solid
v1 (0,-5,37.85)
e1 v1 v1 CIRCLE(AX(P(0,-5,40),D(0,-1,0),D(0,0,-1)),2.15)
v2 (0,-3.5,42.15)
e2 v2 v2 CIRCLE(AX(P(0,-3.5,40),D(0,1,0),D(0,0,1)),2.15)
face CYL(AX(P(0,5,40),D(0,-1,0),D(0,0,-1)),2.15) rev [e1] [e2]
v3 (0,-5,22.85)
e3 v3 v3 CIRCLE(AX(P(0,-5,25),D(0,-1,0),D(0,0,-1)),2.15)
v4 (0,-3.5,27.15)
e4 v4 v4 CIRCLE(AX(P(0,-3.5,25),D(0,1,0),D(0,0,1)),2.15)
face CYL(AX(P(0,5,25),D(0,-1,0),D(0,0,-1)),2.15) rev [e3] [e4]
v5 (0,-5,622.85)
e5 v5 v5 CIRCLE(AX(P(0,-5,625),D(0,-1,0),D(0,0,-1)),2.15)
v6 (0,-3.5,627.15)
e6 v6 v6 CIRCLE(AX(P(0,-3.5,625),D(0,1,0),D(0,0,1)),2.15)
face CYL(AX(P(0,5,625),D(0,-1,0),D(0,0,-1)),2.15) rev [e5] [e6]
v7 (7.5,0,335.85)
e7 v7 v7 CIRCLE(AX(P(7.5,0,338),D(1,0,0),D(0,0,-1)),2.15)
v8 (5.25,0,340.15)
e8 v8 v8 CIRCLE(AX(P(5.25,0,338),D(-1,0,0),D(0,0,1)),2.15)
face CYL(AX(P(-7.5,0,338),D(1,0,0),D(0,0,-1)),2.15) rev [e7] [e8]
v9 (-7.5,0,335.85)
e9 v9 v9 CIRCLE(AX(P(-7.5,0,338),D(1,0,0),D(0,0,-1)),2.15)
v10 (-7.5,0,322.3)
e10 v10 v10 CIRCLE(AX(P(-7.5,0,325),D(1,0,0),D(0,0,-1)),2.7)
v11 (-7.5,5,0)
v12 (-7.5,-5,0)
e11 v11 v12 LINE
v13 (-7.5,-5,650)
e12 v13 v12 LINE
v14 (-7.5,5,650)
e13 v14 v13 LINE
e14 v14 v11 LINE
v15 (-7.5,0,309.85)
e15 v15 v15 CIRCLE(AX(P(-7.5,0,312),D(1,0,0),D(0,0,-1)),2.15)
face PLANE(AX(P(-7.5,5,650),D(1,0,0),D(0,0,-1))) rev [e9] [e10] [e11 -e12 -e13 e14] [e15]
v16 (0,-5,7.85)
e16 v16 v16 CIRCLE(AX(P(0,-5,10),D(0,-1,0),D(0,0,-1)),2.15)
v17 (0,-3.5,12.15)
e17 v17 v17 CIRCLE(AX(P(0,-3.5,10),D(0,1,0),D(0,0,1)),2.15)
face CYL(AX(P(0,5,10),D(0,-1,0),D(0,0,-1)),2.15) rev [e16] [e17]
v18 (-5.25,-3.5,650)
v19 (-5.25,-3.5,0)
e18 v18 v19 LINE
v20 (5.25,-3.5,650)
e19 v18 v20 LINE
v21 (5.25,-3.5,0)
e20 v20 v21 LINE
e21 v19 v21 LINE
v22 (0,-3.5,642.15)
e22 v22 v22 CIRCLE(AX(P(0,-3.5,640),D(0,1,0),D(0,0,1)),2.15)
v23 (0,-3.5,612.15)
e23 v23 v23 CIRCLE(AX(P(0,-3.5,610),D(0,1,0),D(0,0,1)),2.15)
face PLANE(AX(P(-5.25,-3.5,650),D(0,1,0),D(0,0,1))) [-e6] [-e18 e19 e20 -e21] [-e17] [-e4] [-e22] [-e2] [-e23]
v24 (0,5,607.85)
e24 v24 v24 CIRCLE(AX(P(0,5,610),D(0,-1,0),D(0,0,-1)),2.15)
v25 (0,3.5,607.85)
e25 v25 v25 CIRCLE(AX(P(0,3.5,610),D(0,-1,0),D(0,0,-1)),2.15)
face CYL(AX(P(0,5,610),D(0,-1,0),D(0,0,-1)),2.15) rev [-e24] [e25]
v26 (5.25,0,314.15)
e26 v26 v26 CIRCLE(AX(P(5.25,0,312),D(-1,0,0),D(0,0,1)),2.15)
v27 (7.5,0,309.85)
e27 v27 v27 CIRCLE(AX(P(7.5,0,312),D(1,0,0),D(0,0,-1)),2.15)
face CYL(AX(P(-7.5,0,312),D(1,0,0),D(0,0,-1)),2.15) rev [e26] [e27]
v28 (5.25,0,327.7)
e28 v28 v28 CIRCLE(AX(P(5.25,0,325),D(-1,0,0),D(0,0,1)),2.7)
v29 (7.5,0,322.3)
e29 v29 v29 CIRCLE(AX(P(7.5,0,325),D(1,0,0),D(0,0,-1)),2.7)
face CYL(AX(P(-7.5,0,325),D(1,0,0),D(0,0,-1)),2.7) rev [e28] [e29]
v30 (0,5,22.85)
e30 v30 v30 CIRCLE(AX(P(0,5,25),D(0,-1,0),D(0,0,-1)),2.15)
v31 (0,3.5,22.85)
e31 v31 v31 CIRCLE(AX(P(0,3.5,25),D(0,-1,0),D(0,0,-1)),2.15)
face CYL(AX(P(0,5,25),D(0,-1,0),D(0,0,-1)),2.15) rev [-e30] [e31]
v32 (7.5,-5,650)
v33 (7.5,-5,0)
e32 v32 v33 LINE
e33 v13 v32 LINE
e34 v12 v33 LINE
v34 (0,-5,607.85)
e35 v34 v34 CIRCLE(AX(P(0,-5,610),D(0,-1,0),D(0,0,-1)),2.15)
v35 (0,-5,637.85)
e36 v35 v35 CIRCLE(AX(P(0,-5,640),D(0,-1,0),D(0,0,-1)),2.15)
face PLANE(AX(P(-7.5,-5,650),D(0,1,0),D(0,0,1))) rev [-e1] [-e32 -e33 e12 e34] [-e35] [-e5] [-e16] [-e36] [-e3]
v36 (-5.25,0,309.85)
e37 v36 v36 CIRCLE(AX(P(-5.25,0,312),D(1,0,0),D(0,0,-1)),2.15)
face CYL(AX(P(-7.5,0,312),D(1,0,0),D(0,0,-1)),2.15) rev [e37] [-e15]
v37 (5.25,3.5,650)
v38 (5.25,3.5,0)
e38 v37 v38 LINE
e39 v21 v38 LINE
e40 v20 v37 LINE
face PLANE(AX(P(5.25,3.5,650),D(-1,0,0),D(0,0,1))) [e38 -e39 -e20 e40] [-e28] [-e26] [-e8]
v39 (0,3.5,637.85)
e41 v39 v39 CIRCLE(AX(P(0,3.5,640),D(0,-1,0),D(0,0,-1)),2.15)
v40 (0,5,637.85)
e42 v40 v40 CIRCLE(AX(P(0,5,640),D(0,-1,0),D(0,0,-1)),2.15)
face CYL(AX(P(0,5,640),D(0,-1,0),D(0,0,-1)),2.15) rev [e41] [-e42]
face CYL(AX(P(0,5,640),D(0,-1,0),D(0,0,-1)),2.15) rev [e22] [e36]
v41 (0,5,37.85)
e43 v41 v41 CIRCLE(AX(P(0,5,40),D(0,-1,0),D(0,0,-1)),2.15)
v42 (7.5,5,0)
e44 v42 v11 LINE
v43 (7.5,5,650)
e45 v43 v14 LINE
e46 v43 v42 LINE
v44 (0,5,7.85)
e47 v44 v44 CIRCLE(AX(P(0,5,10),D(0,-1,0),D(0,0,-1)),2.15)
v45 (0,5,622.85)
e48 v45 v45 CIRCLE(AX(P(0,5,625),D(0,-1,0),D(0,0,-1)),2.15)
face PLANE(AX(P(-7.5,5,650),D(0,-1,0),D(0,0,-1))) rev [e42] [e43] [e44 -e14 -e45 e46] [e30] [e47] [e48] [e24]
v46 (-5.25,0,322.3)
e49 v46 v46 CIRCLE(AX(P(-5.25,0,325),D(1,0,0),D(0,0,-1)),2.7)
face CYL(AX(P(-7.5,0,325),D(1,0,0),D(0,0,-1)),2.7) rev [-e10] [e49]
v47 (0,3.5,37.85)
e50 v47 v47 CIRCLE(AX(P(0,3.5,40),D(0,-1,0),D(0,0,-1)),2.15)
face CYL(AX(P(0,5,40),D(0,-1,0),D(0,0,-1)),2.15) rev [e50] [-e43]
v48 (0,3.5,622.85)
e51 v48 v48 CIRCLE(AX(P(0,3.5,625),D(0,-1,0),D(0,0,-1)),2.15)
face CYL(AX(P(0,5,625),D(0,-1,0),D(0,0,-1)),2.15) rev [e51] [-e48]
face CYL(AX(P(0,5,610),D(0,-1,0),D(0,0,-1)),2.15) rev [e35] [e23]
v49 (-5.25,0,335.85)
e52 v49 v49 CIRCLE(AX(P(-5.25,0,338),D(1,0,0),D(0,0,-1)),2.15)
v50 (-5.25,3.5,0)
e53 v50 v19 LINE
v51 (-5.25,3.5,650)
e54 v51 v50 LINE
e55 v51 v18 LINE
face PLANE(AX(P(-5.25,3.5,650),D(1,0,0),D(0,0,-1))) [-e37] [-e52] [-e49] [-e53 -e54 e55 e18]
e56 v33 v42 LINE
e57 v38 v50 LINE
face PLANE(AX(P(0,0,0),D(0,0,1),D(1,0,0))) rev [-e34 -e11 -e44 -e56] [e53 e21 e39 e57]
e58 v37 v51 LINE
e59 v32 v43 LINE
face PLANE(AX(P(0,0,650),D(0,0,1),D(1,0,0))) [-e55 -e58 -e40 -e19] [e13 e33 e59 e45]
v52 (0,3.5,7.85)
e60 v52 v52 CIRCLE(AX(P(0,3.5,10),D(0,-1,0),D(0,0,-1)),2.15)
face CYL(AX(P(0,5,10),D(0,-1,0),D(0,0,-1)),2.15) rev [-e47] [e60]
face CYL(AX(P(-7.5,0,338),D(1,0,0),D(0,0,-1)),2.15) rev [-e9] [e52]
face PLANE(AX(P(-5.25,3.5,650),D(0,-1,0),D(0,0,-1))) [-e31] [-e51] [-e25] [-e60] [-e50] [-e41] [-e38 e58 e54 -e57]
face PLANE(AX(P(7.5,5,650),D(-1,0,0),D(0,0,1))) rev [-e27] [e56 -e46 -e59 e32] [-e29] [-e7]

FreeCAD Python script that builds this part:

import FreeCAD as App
import Part
import Sketcher
from FreeCAD import Vector

doc = App.newDocument("Part")
body = doc.addObject("PartDesign::Body", "Body")

sketch1 = body.newObject("Sketcher::SketchObject", "Sketch")
sketch1.AttachmentSupport = (doc.getObject("XY_Plane"), [""])
sketch1.MapMode = "FlatFace"
sketch1.addGeometry([
    Part.LineSegment(Vector(-8, 5, 0), Vector(-8, -5, 0)),
    Part.LineSegment(Vector(-8, -5, 0), Vector(8, -5, 0)),
    Part.LineSegment(Vector(8, -5, 0), Vector(8, 5, 0)),
    Part.LineSegment(Vector(8, 5, 0), Vector(-8, 5, 0)),
    Part.LineSegment(Vector(5, -4, 0), Vector(-5, -4, 0)),
    Part.LineSegment(Vector(-5, -4, 0), Vector(-5, 4, 0)),
    Part.LineSegment(Vector(-5, 4, 0), Vector(5, 4, 0)),
    Part.LineSegment(Vector(5, 4, 0), Vector(5, -4, 0)),
], False)
sketch1.addConstraint([
    Sketcher.Constraint("Coincident", 0, 2, 1, 1),
    Sketcher.Constraint("Coincident", 1, 2, 2, 1),
    Sketcher.Constraint("Coincident", 2, 2, 3, 1),
    Sketcher.Constraint("Coincident", 3, 2, 0, 1),
    Sketcher.Constraint("Coincident", 4, 2, 5, 1),
    Sketcher.Constraint("Coincident", 5, 2, 6, 1),
    Sketcher.Constraint("Coincident", 6, 2, 7, 1),
    Sketcher.Constraint("Coincident", 7, 2, 4, 1),
    Sketcher.Constraint("Vertical", 0),
    Sketcher.Constraint("Horizontal", 1),
    Sketcher.Constraint("Vertical", 2),
    Sketcher.Constraint("Horizontal", 3),
    Sketcher.Constraint("Horizontal", 4),
    Sketcher.Constraint("Vertical", 5),
    Sketcher.Constraint("Horizontal", 6),
    Sketcher.Constraint("Vertical", 7),
    Sketcher.Constraint("Symmetric", 0, 2, 2, 2, -1, 1),
    Sketcher.Constraint("Symmetric", 4, 2, 6, 2, -1, 1),
    Sketcher.Constraint("DistanceX", 1, 1, 1, 2, 15.0),
    Sketcher.Constraint("DistanceY", 0, 2, 0, 1, 10.0),
    Sketcher.Constraint("DistanceY", 5, 1, 5, 2, 7.0),
    Sketcher.Constraint("DistanceX", 4, 2, 4, 1, 10.5),
])
pad1 = body.newObject("PartDesign::Pad", "Pad")
pad1.Profile = sketch1
pad1.Length = 650

sketch2 = body.newObject("Sketcher::SketchObject", "Sketch001")
sketch2.AttachmentSupport = (doc.getObject("XZ_Plane"), [""])
sketch2.MapMode = "FlatFace"
sketch2.AttachmentOffset = App.Placement(Vector(0, 0, 5), App.Rotation())
sketch2.addGeometry([
    Part.Circle(Vector(0, 640, 0), Vector(0, 0, 1), 2.1),
    Part.Circle(Vector(0, 625, 0), Vector(0, 0, 1), 2.1),
    Part.Circle(Vector(0, 610, 0), Vector(0, 0, 1), 2.1),
    Part.Circle(Vector(0, 10, 0), Vector(0, 0, 1), 2.1),
    Part.Circle(Vector(0, 25, 0), Vector(0, 0, 1), 2.1),
    Part.Circle(Vector(0, 40, 0), Vector(0, 0, 1), 2.1),
], False)
sketch2.addConstraint([
    Sketcher.Constraint("Equal", 0, 1),
    Sketcher.Constraint("Equal", 1, 2),
    Sketcher.Constraint("Equal", 2, 3),
    Sketcher.Constraint("Equal", 3, 4),
    Sketcher.Constraint("Equal", 4, 5),
    Sketcher.Constraint("PointOnObject", 0, 3, -2),
    Sketcher.Constraint("PointOnObject", 1, 3, -2),
    Sketcher.Constraint("PointOnObject", 2, 3, -2),
    Sketcher.Constraint("PointOnObject", 3, 3, -2),
    Sketcher.Constraint("PointOnObject", 4, 3, -2),
    Sketcher.Constraint("PointOnObject", 5, 3, -2),
    Sketcher.Constraint("Diameter", 0, 4.3),
    Sketcher.Constraint("DistanceY", -1, 1, 0, 3, 640.0),
    Sketcher.Constraint("DistanceY", -1, 1, 1, 3, 625.0),
    Sketcher.Constraint("DistanceY", -1, 1, 2, 3, 610.0),
    Sketcher.Constraint("DistanceY", -1, 1, 3, 3, 10.0),
    Sketcher.Constraint("DistanceY", -1, 1, 4, 3, 25.0),
    Sketcher.Constraint("DistanceY", -1, 1, 5, 3, 40.0),
])
pocket1 = body.newObject("PartDesign::Pocket", "Pocket")
pocket1.Profile = sketch2
pocket1.Type = "ThroughAll"

sketch3 = body.newObject("Sketcher::SketchObject", "Sketch002")
sketch3.AttachmentSupport = (doc.getObject("YZ_Plane"), [""])
sketch3.MapMode = "FlatFace"
sketch3.AttachmentOffset = App.Placement(Vector(0, 0, 7.5), App.Rotation())
sketch3.addGeometry([
    Part.Circle(Vector(0, 338, 0), Vector(0, 0, 1), 2.1),
    Part.Circle(Vector(0, 312, 0), Vector(0, 0, 1), 2.1),
    Part.Circle(Vector(0, 325, 0), Vector(0, 0, 1), 2.7),
], False)
sketch3.addConstraint([
    Sketcher.Constraint("Equal", 0, 1),
    Sketcher.Constraint("PointOnObject", 0, 3, -2),
    Sketcher.Constraint("PointOnObject", 1, 3, -2),
    Sketcher.Constraint("PointOnObject", 2, 3, -2),
    Sketcher.Constraint("Diameter", 0, 4.3),
    Sketcher.Constraint("Diameter", 2, 5.4),
    Sketcher.Constraint("DistanceY", -1, 1, 0, 3, 338.0),
    Sketcher.Constraint("DistanceY", -1, 1, 1, 3, 312.0),
    Sketcher.Constraint("DistanceY", -1, 1, 2, 3, 325.0),
])
pocket2 = body.newObject("PartDesign::Pocket", "Pocket001")
pocket2.Profile = sketch3
pocket2.Type = "ThroughAll"

doc.recompute()
